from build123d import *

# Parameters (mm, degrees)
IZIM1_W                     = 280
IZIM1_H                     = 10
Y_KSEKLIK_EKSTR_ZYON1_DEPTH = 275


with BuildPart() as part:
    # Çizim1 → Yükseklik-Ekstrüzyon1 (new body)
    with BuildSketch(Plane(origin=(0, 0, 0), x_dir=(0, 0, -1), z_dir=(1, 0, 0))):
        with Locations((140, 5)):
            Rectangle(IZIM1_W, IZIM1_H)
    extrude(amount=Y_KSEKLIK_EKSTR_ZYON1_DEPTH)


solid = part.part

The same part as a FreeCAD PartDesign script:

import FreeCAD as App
import Part
import Sketcher

V = App.Vector


def add_polygon(sketch, points):
    """Adds a closed chain of lines whose ends are joined by coincident constraints."""
    first, n = sketch.GeometryCount, len(points)
    for a, b in zip(points, points[1:] + points[:1]):
        sketch.addGeometry(Part.LineSegment(App.Vector(*a, 0), App.Vector(*b, 0)), False)
    for i in range(n):
        sketch.addConstraint(Sketcher.Constraint("Coincident", first + i, 2, first + (i + 1) % n, 1))

doc = App.newDocument("Part")
params = doc.addObject("Spreadsheet::Sheet", "Params")
for row, (alias, value) in enumerate([
    ("sketch1_width", "10 mm"),
    ("sketch1_height", "280 mm"),
    ("pad1_length", "275 mm"),
], start=1):
    params.set(f"A{row}", alias)
    params.set(f"B{row}", "=" + value)
    params.setAlias(f"B{row}", alias)

body = doc.addObject("PartDesign::Body", "Body")

# Sketch on YZ plane
sketch1 = body.newObject("Sketcher::SketchObject", "Sketch")
sketch1.AttachmentSupport = (doc.getObject("YZ_Plane"), [""])
sketch1.MapMode = "FlatFace"
add_polygon(sketch1, [(10, 0), (0, 0), (0, -280), (10, -280)])  # lines 0-3
sketch1.addConstraint(Sketcher.Constraint("Horizontal", 0))
sketch1.addConstraint(Sketcher.Constraint("Vertical", 1))
sketch1.addConstraint(Sketcher.Constraint("Horizontal", 2))
sketch1.addConstraint(Sketcher.Constraint("Vertical", 3))
sketch1.addConstraint(Sketcher.Constraint("Coincident", 0, 2, -1, 1))
sketch1.addConstraint(Sketcher.Constraint("DistanceX", 0, 2, 0, 1, 10.0))
sketch1.addConstraint(Sketcher.Constraint("DistanceY", 1, 2, 1, 1, 280.0))
sketch1.setExpression("Constraints[9]", "Params.sketch1_width")
sketch1.setExpression("Constraints[10]", "Params.sketch1_height")
pad1 = body.newObject("PartDesign::Pad", "Pad")
pad1.Profile = sketch1
pad1.setExpression("Length", "Params.pad1_length")

doc.recompute()
